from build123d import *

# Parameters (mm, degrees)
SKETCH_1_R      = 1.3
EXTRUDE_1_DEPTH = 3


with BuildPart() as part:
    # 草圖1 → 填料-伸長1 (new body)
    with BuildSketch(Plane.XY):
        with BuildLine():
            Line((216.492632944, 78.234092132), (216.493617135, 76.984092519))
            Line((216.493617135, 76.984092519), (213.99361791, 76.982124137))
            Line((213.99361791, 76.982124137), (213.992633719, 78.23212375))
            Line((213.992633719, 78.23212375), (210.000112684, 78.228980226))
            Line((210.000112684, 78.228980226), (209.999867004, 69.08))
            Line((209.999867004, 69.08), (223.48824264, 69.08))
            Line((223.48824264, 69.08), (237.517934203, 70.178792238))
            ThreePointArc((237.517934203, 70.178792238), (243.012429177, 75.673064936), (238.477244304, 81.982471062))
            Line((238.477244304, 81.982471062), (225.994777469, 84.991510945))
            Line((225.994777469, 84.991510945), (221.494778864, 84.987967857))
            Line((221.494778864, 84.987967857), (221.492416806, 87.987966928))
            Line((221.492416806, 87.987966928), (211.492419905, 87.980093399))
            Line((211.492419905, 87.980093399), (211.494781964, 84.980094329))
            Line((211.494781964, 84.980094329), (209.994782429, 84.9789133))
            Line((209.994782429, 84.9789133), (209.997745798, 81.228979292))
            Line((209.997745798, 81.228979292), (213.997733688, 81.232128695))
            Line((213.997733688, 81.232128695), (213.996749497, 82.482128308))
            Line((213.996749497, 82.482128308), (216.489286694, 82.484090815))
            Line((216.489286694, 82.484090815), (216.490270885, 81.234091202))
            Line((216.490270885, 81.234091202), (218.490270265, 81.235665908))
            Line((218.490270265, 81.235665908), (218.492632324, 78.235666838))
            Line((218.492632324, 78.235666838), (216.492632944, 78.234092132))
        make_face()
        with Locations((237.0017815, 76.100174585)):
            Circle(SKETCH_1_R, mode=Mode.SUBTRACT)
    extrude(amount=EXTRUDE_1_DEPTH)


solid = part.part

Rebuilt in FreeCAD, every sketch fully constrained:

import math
import FreeCAD as App
import Part
import Sketcher

V = App.Vector

doc = App.newDocument("Part")
body = doc.addObject("PartDesign::Body", "Body")

# Sketch on XY plane
sketch1 = doc.addObject("Sketcher::SketchObject", "Sketch")
body.addObject(sketch1)
sketch1.AttachmentSupport = (doc.XY_Plane, [""])
sketch1.MapMode = "FlatFace"
sketch1.addGeometry(Part.LineSegment(V(216.492633, 78.234092, 0), V(216.493617, 76.984093, 0)), False)
sketch1.addGeometry(Part.LineSegment(V(216.493617, 76.984093, 0), V(213.993618, 76.982124, 0)), False)
sketch1.addGeometry(Part.LineSegment(V(213.993618, 76.982124, 0), V(213.992634, 78.232124, 0)), False)
sketch1.addGeometry(Part.LineSegment(V(213.992634, 78.232124, 0), V(210.000113, 78.22898, 0)), False)
sketch1.addGeometry(Part.LineSegment(V(210.000113, 78.22898, 0), V(209.999867, 69.08, 0)), False)
sketch1.addGeometry(Part.LineSegment(V(209.999867, 69.08, 0), V(223.488243, 69.08, 0)), False)
sketch1.addGeometry(Part.LineSegment(V(223.488243, 69.08, 0), V(237.517934, 70.178792, 0)), False)
sketch1.addGeometry(Part.ArcOfCircle(Part.Circle(V(237.032146, 76.159095, 0), V(0, 0, 1), 6.000001), math.radians(-85.35598), math.radians(76.063304)), False)
sketch1.addGeometry(Part.LineSegment(V(238.477244, 81.982471, 0), V(225.994777, 84.991511, 0)), False)
sketch1.addGeometry(Part.LineSegment(V(225.994777, 84.991511, 0), V(221.494779, 84.987968, 0)), False)
sketch1.addGeometry(Part.LineSegment(V(221.494779, 84.987968, 0), V(221.492417, 87.987967, 0)), False)
sketch1.addGeometry(Part.LineSegment(V(221.492417, 87.987967, 0), V(211.49242, 87.980093, 0)), False)
sketch1.addGeometry(Part.LineSegment(V(211.49242, 87.980093, 0), V(211.494782, 84.980094, 0)), False)
sketch1.addGeometry(Part.LineSegment(V(211.494782, 84.980094, 0), V(209.994782, 84.978913, 0)), False)
sketch1.addGeometry(Part.LineSegment(V(209.994782, 84.978913, 0), V(209.997746, 81.228979, 0)), False)
sketch1.addGeometry(Part.LineSegment(V(209.997746, 81.228979, 0), V(213.997734, 81.232129, 0)), False)
sketch1.addGeometry(Part.LineSegment(V(213.997734, 81.232129, 0), V(213.996749, 82.482128, 0)), False)
sketch1.addGeometry(Part.LineSegment(V(213.996749, 82.482128, 0), V(216.489287, 82.484091, 0)), False)
sketch1.addGeometry(Part.LineSegment(V(216.489287, 82.484091, 0), V(216.490271, 81.234091, 0)), False)
sketch1.addGeometry(Part.LineSegment(V(216.490271, 81.234091, 0), V(218.49027, 81.235666, 0)), False)
sketch1.addGeometry(Part.LineSegment(V(218.49027, 81.235666, 0), V(218.492632, 78.235667, 0)), False)
sketch1.addGeometry(Part.LineSegment(V(218.492632, 78.235667, 0), V(216.492633, 78.234092, 0)), False)
sketch1.addGeometry(Part.Circle(V(237.001781, 76.100175, 0), V(0, 0, 1), 1.3), False)
sketch1.addConstraint(Sketcher.Constraint("Coincident", 0, 2, 1, 1))
sketch1.addConstraint(Sketcher.Constraint("Coincident", 1, 2, 2, 1))
sketch1.addConstraint(Sketcher.Constraint("Coincident", 2, 2, 3, 1))
sketch1.addConstraint(Sketcher.Constraint("Coincident", 3, 2, 4, 1))
sketch1.addConstraint(Sketcher.Constraint("Coincident", 4, 2, 5, 1))
sketch1.addConstraint(Sketcher.Constraint("Coincident", 5, 2, 6, 1))
sketch1.addConstraint(Sketcher.Constraint("Coincident", 6, 2, 7, 1))
sketch1.addConstraint(Sketcher.Constraint("Coincident", 7, 2, 8, 1))
sketch1.addConstraint(Sketcher.Constraint("Coincident", 8, 2, 9, 1))
sketch1.addConstraint(Sketcher.Constraint("Coincident", 9, 2, 10, 1))
sketch1.addConstraint(Sketcher.Constraint("Coincident", 10, 2, 11, 1))
sketch1.addConstraint(Sketcher.Constraint("Coincident", 11, 2, 12, 1))
sketch1.addConstraint(Sketcher.Constraint("Coincident", 12, 2, 13, 1))
sketch1.addConstraint(Sketcher.Constraint("Coincident", 13, 2, 14, 1))
sketch1.addConstraint(Sketcher.Constraint("Coincident", 14, 2, 15, 1))
sketch1.addConstraint(Sketcher.Constraint("Coincident", 15, 2, 16, 1))
sketch1.addConstraint(Sketcher.Constraint("Coincident", 16, 2, 17, 1))
sketch1.addConstraint(Sketcher.Constraint("Coincident", 17, 2, 18, 1))
sketch1.addConstraint(Sketcher.Constraint("Coincident", 18, 2, 19, 1))
sketch1.addConstraint(Sketcher.Constraint("Coincident", 19, 2, 20, 1))
sketch1.addConstraint(Sketcher.Constraint("Coincident", 20, 2, 21, 1))
sketch1.addConstraint(Sketcher.Constraint("Coincident", 21, 2, 0, 1))
sketch1.addConstraint(Sketcher.Constraint("Horizontal", 5))
sketch1.addConstraint(Sketcher.Constraint("Perpendicular", 0, 1))
sketch1.addConstraint(Sketcher.Constraint("Perpendicular", 1, 2))
sketch1.addConstraint(Sketcher.Constraint("Perpendicular", 2, 3))
sketch1.addConstraint(Sketcher.Constraint("Parallel", 3, 9))
sketch1.addConstraint(Sketcher.Constraint("Perpendicular", 9, 10))
sketch1.addConstraint(Sketcher.Constraint("Perpendicular", 10, 11))
sketch1.addConstraint(Sketcher.Constraint("Perpendicular", 11, 12))
sketch1.addConstraint(Sketcher.Constraint("Perpendicular", 12, 13))
sketch1.addConstraint(Sketcher.Constraint("Parallel", 13, 15))
sketch1.addConstraint(Sketcher.Constraint("Perpendicular", 15, 16))
sketch1.addConstraint(Sketcher.Constraint("Perpendicular", 16, 17))
sketch1.addConstraint(Sketcher.Constraint("Perpendicular", 17, 18))
sketch1.addConstraint(Sketcher.Constraint("Perpendicular", 18, 19))
sketch1.addConstraint(Sketcher.Constraint("Perpendicular", 19, 20))
sketch1.addConstraint(Sketcher.Constraint("Perpendicular", 20, 21))
sketch1.addConstraint(Sketcher.Constraint("Equal", 0, 2))
sketch1.addConstraint(Sketcher.Constraint("Equal", 10, 12))
sketch1.addConstraint(Sketcher.Constraint("Equal", 2, 16))
sketch1.addConstraint(Sketcher.Constraint("Equal", 16, 18))
sketch1.addConstraint(Sketcher.Constraint("Equal", 12, 20))
sketch1.addConstraint(Sketcher.Constraint("Equal", 19, 21))
sketch1.addConstraint(Sketcher.Constraint("Radius", 7, 6.000001))
sketch1.addConstraint(Sketcher.Constraint("Diameter", 22, 2.6))
sketch1.addConstraint(Sketcher.Constraint("Distance", 10, 3.0))
sketch1.addConstraint(Sketcher.Constraint("Distance", 11, 10.0))
sketch1.addConstraint(Sketcher.Constraint("Distance", 19, 2.0))
sketch1.addConstraint(Sketcher.Constraint("Distance", 1, 2.5))
sketch1.addConstraint(Sketcher.Constraint("Distance", 9, 4.5))
sketch1.addConstraint(Sketcher.Constraint("Distance", 13, 1.5))
sketch1.addConstraint(Sketcher.Constraint("DistanceY", 0, 2, 17, 2, 5.499998))
sketch1.addConstraint(Sketcher.Constraint("DistanceY", -1, 1, 4, 2, 69.08))
sketch1.addConstraint(Sketcher.Constraint("DistanceX", 5, 2, 7, 2, 14.989002))
sketch1.addConstraint(Sketcher.Constraint("DistanceY", 0, 2, 12, 2, 7.996002))
sketch1.addConstraint(Sketcher.Constraint("DistanceY", 6, 2, 0, 2, 6.8053))
sketch1.addConstraint(Sketcher.Constraint("DistanceX", 7, 3, 7, 2, 1.445099))
sketch1.addConstraint(Sketcher.Constraint("DistanceX", 0, 2, 10, 2, 4.9988))
sketch1.addConstraint(Sketcher.Constraint("DistanceX", 2, 2, 15, 2, 0.0051))
sketch1.addConstraint(Sketcher.Constraint("Distance", 4, 9.14898))
sketch1.addConstraint(Sketcher.Constraint("Distance", 15, 3.999989))
sketch1.addConstraint(Sketcher.Constraint("DistanceX", 5, 1, 5, 2, 13.488376))
sketch1.addConstraint(Sketcher.Constraint("DistanceX", -1, 1, 22, 3, 237.001781))
sketch1.addConstraint(Sketcher.Constraint("DistanceY", -1, 1, 7, 2, 81.982471))
sketch1.addConstraint(Sketcher.Constraint("DistanceY", -1, 1, 8, 2, 84.991511))
sketch1.addConstraint(Sketcher.Constraint("DistanceX", -1, 1, 9, 2, 221.494779))
sketch1.addConstraint(Sketcher.Constraint("DistanceY", 22, 3, 7, 3, 0.058921))
sketch1.addConstraint(Sketcher.Constraint("DistanceX", 0, 2, 7, 3, 20.538529))
sketch1.addConstraint(Sketcher.Constraint("DistanceX", 3, 2, 2, 2, 3.992521))
pad1 = doc.addObject("PartDesign::Pad", "Pad")
body.addObject(pad1)
pad1.Profile = sketch1
pad1.Length = 3

doc.recompute()
